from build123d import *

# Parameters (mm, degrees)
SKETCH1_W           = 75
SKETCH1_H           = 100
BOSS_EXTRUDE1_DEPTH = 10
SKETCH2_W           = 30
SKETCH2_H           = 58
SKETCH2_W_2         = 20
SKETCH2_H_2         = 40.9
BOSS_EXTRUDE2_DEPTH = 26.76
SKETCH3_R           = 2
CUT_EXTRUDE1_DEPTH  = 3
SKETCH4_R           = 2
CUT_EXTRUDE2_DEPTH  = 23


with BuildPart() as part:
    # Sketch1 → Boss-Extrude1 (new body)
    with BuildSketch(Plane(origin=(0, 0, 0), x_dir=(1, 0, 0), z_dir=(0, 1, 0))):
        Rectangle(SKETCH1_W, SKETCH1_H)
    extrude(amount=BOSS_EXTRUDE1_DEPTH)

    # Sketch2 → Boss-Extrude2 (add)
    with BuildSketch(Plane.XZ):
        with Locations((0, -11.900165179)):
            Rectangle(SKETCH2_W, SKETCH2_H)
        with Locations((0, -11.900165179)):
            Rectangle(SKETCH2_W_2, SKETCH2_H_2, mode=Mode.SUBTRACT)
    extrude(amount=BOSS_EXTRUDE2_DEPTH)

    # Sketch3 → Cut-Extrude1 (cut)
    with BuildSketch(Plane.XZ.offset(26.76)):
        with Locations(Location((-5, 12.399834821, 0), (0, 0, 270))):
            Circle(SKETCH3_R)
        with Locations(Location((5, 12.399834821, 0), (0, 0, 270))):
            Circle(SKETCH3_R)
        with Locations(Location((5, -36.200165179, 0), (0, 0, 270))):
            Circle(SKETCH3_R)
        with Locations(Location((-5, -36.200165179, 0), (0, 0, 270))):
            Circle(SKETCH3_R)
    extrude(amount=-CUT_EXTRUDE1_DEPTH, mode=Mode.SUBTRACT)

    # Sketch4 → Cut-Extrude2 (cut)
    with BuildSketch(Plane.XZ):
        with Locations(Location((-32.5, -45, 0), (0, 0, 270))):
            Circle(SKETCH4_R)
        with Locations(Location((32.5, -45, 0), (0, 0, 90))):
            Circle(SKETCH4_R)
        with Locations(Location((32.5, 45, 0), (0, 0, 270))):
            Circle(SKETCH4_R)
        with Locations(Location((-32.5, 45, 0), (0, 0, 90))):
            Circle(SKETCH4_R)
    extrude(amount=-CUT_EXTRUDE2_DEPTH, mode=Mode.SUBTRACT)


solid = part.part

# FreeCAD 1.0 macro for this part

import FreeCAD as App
import Part
import Sketcher
Q = App.Units.Quantity


def add_polygon(sketch, points):
    """Adds a closed chain of lines whose ends are joined by coincident constraints."""
    first, n = sketch.GeometryCount, len(points)
    for a, b in zip(points, points[1:] + points[:1]):
        sketch.addGeometry(Part.LineSegment(App.Vector(*a, 0), App.Vector(*b, 0)), False)
    for i in range(n):
        sketch.addConstraint(Sketcher.Constraint("Coincident", first + i, 2, first + (i + 1) % n, 1))

doc = App.newDocument("Part")
body = doc.addObject("PartDesign::Body", "Body")

# Sketch on XZ plane
sketch1 = body.newObject("Sketcher::SketchObject", "Sketch")
sketch1.AttachmentSupport = (doc.getObject("XZ_Plane"), [""])
sketch1.MapMode = "FlatFace"
add_polygon(sketch1, [(-38, -50), (-38, 50), (38, 50), (38, -50)])  # lines 0-3
sketch1.addConstraint(Sketcher.Constraint("Vertical", 0))
sketch1.addConstraint(Sketcher.Constraint("Horizontal", 1))
sketch1.addConstraint(Sketcher.Constraint("Vertical", 2))
sketch1.addConstraint(Sketcher.Constraint("Horizontal", 3))
sketch1.addConstraint(Sketcher.Constraint("Symmetric", 0, 2, 2, 2, -1, 1))
sketch1.addConstraint(Sketcher.Constraint("DistanceX", 1, 1, 1, 2, Q("75 mm")))
sketch1.addConstraint(Sketcher.Constraint("DistanceY", 0, 1, 0, 2, Q("100 mm")))
pad1 = body.newObject("PartDesign::Pad", "Pad")
pad1.Profile = sketch1
pad1.Length = 10
pad1.Reversed = True

# Sketch on XZ plane
sketch2 = body.newObject("Sketcher::SketchObject", "Sketch001")
sketch2.AttachmentSupport = (doc.getObject("XZ_Plane"), [""])
sketch2.MapMode = "FlatFace"
add_polygon(sketch2, [(-15, 17), (-15, -41), (15, -41), (15, 17)])  # lines 0-3
add_polygon(sketch2, [(10, -32), (-10, -32), (-10, 9), (10, 9)])  # lines 4-7
sketch2.addConstraint(Sketcher.Constraint("Vertical", 0))
sketch2.addConstraint(Sketcher.Constraint("Horizontal", 1))
sketch2.addConstraint(Sketcher.Constraint("Vertical", 2))
sketch2.addConstraint(Sketcher.Constraint("Horizontal", 3))
sketch2.addConstraint(Sketcher.Constraint("Horizontal", 4))
sketch2.addConstraint(Sketcher.Constraint("Vertical", 5))
sketch2.addConstraint(Sketcher.Constraint("Horizontal", 6))
sketch2.addConstraint(Sketcher.Constraint("Vertical", 7))
sketch2.addConstraint(Sketcher.Constraint("DistanceX", 1, 1, 1, 2, Q("30 mm")))
sketch2.addConstraint(Sketcher.Constraint("DistanceX", 4, 2, 4, 1, Q("20 mm")))
sketch2.addConstraint(Sketcher.Constraint("DistanceY", 0, 2, 0, 1, Q("58 mm")))
sketch2.addConstraint(Sketcher.Constraint("DistanceY", 5, 1, 5, 2, Q("40.9 mm")))
sketch2.addConstraint(Sketcher.Constraint("DistanceX", 0, 2, -1, 1, Q("15 mm")))
sketch2.addConstraint(Sketcher.Constraint("DistanceX", 4, 2, -1, 1, Q("10 mm")))
sketch2.addConstraint(Sketcher.Constraint("DistanceY", 0, 2, 4, 2, Q("8.55 mm")))
sketch2.addConstraint(Sketcher.Constraint("DistanceY", 0, 2, -1, 1, Q("40.900165 mm")))
pad2 = body.newObject("PartDesign::Pad", "Pad001")
pad2.Profile = sketch2
pad2.Length = 26.76

# Sketch on XZ plane
sketch3 = body.newObject("Sketcher::SketchObject", "Sketch002")
sketch3.AttachmentSupport = (doc.getObject("XZ_Plane"), [""])
sketch3.MapMode = "FlatFace"
sketch3.AttachmentOffset = App.Placement(App.Vector(0, 0, 26.76), App.Rotation())
sketch3.addGeometry(Part.Circle(App.Vector(-5, 12.4, 0), App.Vector(0, 0, 1), 2), False)
sketch3.addGeometry(Part.Circle(App.Vector(5, 12.4, 0), App.Vector(0, 0, 1), 2), False)
sketch3.addGeometry(Part.Circle(App.Vector(5, -36.2, 0), App.Vector(0, 0, 1), 2), False)
sketch3.addGeometry(Part.Circle(App.Vector(-5, -36.2, 0), App.Vector(0, 0, 1), 2), False)
sketch3.addConstraint(Sketcher.Constraint("Equal", 0, 1))
sketch3.addConstraint(Sketcher.Constraint("Equal", 1, 2))
sketch3.addConstraint(Sketcher.Constraint("Equal", 2, 3))
sketch3.addConstraint(Sketcher.Constraint("Symmetric", 0, 3, 1, 3, -2))
sketch3.addConstraint(Sketcher.Constraint("Symmetric", 2, 3, 3, 3, -2))
sketch3.addConstraint(Sketcher.Constraint("Vertical", 1, 3, 2, 3))
sketch3.addConstraint(Sketcher.Constraint("Diameter", 0, Q("4 mm")))
sketch3.addConstraint(Sketcher.Constraint("DistanceX", 0, 3, -1, 1, Q("5 mm")))
sketch3.addConstraint(Sketcher.Constraint("DistanceY", 2, 3, 1, 3, Q("48.6 mm")))
sketch3.addConstraint(Sketcher.Constraint("DistanceY", -1, 1, 0, 3, Q("12.399835 mm")))
pocket1 = body.newObject("PartDesign::Pocket", "Pocket")
pocket1.Profile = sketch3
pocket1.Length = 3

# Sketch on XZ plane
sketch4 = body.newObject("Sketcher::SketchObject", "Sketch003")
sketch4.AttachmentSupport = (doc.getObject("XZ_Plane"), [""])
sketch4.MapMode = "FlatFace"
sketch4.addGeometry(Part.Circle(App.Vector(-32.5, -45, 0), App.Vector(0, 0, 1), 2), False)
sketch4.addGeometry(Part.Circle(App.Vector(32.5, -45, 0), App.Vector(0, 0, 1), 2), False)
sketch4.addGeometry(Part.Circle(App.Vector(32.5, 45, 0), App.Vector(0, 0, 1), 2), False)
sketch4.addGeometry(Part.Circle(App.Vector(-32.5, 45, 0), App.Vector(0, 0, 1), 2), False)
sketch4.addConstraint(Sketcher.Constraint("Equal", 0, 1))
sketch4.addConstraint(Sketcher.Constraint("Equal", 1, 2))
sketch4.addConstraint(Sketcher.Constraint("Equal", 2, 3))
sketch4.addConstraint(Sketcher.Constraint("Symmetric", 0, 3, 2, 3, -1, 1))
sketch4.addConstraint(Sketcher.Constraint("Symmetric", 1, 3, 3, 3, -1, 1))
sketch4.addConstraint(Sketcher.Constraint("Symmetric", 0, 3, 1, 3, -2))
sketch4.addConstraint(Sketcher.Constraint("Diameter", 0, Q("4 mm")))
sketch4.addConstraint(Sketcher.Constraint("DistanceY", 0, 3, -1, 1, Q("45 mm")))
sketch4.addConstraint(Sketcher.Constraint("DistanceX", 0, 3, 1, 3, Q("65 mm")))
pocket2 = body.newObject("PartDesign::Pocket", "Pocket001")
pocket2.Profile = sketch4
pocket2.Length = 23

doc.recompute()
